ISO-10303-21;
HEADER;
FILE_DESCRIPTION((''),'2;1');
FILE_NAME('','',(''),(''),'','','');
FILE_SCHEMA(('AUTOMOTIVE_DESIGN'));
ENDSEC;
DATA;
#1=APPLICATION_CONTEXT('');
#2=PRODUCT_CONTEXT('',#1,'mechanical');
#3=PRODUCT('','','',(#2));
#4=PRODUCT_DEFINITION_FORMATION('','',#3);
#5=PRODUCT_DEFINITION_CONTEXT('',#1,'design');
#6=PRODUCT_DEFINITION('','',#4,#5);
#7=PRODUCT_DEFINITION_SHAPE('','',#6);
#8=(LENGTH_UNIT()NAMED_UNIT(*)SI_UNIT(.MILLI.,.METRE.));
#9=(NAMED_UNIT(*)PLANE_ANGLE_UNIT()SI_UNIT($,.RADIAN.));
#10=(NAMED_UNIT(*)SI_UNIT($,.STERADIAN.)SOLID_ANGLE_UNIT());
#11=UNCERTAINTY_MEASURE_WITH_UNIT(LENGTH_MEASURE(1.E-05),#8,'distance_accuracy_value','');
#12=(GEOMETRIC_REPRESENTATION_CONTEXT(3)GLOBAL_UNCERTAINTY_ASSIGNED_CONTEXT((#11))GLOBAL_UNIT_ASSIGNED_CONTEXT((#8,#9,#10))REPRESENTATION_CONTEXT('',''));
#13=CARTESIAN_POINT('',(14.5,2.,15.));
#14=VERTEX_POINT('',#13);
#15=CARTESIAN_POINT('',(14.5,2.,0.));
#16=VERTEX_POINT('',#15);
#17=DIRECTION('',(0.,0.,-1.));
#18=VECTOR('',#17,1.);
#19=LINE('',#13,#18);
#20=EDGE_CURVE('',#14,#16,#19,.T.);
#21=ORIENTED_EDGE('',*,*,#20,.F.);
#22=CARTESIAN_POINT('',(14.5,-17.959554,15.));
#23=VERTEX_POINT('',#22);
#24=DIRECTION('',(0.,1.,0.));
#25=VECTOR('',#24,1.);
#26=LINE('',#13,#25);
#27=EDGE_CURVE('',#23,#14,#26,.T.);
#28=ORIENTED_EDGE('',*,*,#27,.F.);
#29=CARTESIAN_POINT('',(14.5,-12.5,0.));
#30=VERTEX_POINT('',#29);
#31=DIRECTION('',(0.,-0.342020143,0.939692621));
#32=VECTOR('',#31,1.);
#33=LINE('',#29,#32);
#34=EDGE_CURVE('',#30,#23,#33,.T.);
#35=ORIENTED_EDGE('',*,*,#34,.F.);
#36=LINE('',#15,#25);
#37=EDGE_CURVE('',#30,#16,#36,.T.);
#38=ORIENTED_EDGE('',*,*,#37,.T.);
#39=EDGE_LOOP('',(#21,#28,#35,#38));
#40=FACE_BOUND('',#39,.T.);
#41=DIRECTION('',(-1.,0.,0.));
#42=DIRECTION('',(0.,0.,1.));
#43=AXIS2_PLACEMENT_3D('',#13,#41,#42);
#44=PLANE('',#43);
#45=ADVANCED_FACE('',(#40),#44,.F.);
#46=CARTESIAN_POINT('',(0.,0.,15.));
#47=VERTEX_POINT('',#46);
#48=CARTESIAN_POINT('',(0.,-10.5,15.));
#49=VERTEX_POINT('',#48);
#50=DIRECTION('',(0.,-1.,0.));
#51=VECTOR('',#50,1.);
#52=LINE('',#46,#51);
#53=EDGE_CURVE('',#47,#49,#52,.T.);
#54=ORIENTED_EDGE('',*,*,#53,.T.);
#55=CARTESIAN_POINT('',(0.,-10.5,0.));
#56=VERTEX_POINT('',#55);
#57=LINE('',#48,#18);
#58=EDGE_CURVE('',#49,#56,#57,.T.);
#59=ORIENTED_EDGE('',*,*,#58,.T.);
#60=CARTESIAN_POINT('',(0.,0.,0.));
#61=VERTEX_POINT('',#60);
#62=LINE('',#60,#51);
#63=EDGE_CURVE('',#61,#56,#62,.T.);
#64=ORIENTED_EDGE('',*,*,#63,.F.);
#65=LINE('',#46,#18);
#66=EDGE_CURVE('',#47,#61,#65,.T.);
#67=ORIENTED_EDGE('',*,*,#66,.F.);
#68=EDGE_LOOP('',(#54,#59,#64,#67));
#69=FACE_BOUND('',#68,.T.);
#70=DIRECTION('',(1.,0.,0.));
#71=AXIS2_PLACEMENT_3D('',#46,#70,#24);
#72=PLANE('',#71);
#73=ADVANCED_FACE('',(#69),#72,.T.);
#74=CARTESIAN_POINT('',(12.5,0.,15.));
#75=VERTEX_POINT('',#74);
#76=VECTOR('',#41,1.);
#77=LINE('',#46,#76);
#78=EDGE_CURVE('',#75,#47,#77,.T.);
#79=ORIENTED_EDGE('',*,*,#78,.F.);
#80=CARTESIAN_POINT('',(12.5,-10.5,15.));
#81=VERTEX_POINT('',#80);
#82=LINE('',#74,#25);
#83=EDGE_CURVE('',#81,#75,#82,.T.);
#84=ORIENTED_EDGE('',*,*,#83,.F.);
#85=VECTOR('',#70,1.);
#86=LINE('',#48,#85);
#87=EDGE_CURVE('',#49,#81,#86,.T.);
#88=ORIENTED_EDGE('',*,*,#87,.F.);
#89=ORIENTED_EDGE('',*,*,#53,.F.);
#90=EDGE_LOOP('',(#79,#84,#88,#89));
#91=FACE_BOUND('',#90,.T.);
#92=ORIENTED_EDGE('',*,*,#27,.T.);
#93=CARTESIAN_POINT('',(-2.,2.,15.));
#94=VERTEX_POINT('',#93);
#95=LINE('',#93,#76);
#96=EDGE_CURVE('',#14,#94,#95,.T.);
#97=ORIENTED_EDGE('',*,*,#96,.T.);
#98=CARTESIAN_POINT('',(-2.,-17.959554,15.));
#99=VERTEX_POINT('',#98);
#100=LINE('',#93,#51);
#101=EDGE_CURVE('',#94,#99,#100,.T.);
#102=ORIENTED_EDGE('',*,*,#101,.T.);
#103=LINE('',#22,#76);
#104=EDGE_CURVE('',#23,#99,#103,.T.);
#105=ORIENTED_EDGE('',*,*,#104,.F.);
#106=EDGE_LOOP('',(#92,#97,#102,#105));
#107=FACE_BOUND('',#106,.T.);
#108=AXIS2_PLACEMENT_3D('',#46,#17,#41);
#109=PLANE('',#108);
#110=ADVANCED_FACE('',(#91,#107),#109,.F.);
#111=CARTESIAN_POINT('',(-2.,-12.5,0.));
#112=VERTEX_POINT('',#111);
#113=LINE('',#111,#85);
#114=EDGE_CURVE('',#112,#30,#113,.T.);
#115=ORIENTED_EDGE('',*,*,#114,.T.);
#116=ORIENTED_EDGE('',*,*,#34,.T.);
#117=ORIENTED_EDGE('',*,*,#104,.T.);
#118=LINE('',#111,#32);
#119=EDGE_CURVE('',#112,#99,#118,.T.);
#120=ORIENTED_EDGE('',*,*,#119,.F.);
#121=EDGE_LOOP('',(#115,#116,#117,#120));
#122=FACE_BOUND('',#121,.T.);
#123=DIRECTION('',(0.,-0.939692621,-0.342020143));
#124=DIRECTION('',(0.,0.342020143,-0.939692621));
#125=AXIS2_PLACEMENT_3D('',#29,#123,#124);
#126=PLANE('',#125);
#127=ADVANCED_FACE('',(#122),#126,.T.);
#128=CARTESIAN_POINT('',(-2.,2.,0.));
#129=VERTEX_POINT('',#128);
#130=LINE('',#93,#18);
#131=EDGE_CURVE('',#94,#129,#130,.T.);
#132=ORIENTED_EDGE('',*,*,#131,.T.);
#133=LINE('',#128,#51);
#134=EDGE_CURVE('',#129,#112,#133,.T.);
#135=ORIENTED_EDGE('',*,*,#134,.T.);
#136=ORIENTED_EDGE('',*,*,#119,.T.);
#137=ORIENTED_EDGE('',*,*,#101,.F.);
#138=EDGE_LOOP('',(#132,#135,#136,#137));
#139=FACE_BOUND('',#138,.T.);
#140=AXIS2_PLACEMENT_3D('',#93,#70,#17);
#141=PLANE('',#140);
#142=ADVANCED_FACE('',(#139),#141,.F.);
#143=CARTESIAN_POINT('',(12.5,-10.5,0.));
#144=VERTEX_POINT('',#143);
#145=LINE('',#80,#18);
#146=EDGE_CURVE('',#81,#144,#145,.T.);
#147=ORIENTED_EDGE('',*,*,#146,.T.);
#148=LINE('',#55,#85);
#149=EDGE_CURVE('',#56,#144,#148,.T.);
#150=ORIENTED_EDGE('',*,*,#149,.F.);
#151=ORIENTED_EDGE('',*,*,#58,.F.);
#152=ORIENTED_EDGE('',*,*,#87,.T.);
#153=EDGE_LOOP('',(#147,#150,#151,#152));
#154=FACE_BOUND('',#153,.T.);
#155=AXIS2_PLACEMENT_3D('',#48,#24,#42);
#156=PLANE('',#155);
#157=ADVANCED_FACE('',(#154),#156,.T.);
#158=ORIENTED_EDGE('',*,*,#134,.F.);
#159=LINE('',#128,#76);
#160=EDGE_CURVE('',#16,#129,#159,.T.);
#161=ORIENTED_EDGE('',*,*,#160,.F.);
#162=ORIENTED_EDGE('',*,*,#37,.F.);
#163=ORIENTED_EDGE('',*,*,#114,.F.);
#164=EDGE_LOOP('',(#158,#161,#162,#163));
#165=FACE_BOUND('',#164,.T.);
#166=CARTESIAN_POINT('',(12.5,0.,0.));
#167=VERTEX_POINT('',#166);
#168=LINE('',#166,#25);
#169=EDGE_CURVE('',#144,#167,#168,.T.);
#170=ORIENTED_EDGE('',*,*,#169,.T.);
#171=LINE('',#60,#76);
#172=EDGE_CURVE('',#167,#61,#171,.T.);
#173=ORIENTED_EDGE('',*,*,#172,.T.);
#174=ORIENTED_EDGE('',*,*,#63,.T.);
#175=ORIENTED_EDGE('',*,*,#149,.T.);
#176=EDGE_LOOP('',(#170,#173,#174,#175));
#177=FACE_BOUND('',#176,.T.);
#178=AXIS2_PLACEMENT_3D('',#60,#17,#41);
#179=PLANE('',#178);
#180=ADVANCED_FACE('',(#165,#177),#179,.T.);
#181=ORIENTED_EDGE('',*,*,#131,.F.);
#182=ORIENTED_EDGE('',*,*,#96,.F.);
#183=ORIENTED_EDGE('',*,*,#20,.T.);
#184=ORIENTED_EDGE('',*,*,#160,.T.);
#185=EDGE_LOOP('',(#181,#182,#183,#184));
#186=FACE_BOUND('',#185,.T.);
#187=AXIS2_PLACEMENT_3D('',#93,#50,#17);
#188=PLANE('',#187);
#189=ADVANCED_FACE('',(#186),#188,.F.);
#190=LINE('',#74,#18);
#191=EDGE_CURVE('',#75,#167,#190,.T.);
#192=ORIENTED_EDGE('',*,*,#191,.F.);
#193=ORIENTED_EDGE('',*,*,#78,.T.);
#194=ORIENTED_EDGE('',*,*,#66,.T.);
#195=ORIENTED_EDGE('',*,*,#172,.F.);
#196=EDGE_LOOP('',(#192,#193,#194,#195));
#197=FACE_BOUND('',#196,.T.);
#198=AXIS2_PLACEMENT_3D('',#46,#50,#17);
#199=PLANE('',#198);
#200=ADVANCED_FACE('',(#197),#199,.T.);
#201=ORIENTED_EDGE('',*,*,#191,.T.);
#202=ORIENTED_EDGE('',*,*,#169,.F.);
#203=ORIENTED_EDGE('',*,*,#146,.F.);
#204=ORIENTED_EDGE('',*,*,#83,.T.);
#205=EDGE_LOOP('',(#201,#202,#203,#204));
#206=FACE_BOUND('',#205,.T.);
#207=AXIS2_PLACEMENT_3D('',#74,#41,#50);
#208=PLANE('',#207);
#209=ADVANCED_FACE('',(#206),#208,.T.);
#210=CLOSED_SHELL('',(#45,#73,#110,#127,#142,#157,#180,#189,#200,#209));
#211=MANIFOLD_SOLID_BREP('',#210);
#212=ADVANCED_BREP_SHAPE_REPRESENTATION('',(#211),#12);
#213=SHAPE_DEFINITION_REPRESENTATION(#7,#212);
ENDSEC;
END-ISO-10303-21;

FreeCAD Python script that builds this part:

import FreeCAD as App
import Part
import Sketcher
from FreeCAD import Vector
Q = App.Units.Quantity


def add_polygon(sketch, points):
    """Adds a closed chain of lines whose ends are joined by coincident constraints."""
    first, n = sketch.GeometryCount, len(points)
    for a, b in zip(points, points[1:] + points[:1]):
        sketch.addGeometry(Part.LineSegment(App.Vector(*a, 0), App.Vector(*b, 0)), False)
    for i in range(n):
        sketch.addConstraint(Sketcher.Constraint("Coincident", first + i, 2, first + (i + 1) % n, 1))

doc = App.newDocument("Part")
body = doc.addObject("PartDesign::Body", "Body")

sketch1 = doc.addObject("Sketcher::SketchObject", "Sketch")
body.addObject(sketch1)
sketch1.AttachmentSupport = (doc.XY_Plane, [""])
sketch1.MapMode = "FlatFace"
add_polygon(sketch1, [(-2, 2), (-2, -12), (14, -12), (14, 2)])
add_polygon(sketch1, [(12, -10), (0, -10), (0, 0), (12, 0)])
sketch1.addConstraint([
    Sketcher.Constraint("Vertical", 0),
    Sketcher.Constraint("Horizontal", 1),
    Sketcher.Constraint("Vertical", 2),
    Sketcher.Constraint("Horizontal", 3),
    Sketcher.Constraint("Horizontal", 4),
    Sketcher.Constraint("Vertical", 5),
    Sketcher.Constraint("Horizontal", 6),
    Sketcher.Constraint("Vertical", 7),
    Sketcher.Constraint("Coincident", 5, 2, -1, 1),
    Sketcher.Constraint("DistanceX", 1, 1, 1, 2, 16.5),
    Sketcher.Constraint("DistanceX", 4, 2, 4, 1, 12.5),
    Sketcher.Constraint("DistanceY", 0, 2, 0, 1, 14.5),
    Sketcher.Constraint("DistanceY", 5, 1, 5, 2, 10.5),
    Sketcher.Constraint("DistanceX", 0, 2, -1, 1, 2.0),
    Sketcher.Constraint("DistanceY", -1, 1, 2, 2, 2.0),
])
pad1 = doc.addObject("PartDesign::Pad", "Pad")
body.addObject(pad1)
pad1.Profile = sketch1
pad1.Length = 15

sketch2 = doc.addObject("Sketcher::SketchObject", "Sketch001")
body.addObject(sketch2)
sketch2.AttachmentSupport = (doc.YZ_Plane, [""])
sketch2.MapMode = "FlatFace"
sketch2.AttachmentOffset = App.Placement(Vector(0, 0, -2), App.Rotation())
add_polygon(sketch2, [(-12, 0), (-18, 15), (-12, 15)])
sketch2.addConstraint([
    Sketcher.Constraint("Horizontal", 1),
    Sketcher.Constraint("Vertical", 2),
    Sketcher.Constraint("PointOnObject", 2, 2, -1),
    Sketcher.Constraint("DistanceY", 2, 2, 2, 1, 15.0),
    Sketcher.Constraint("Angle", 0, Q("110 deg")),
    Sketcher.Constraint("DistanceX", 1, 2, -1, 1, 12.5),
])
pad2 = doc.addObject("PartDesign::Pad", "Pad001")
body.addObject(pad2)
pad2.Profile = sketch2
pad2.Length = 16.5

doc.recompute()
